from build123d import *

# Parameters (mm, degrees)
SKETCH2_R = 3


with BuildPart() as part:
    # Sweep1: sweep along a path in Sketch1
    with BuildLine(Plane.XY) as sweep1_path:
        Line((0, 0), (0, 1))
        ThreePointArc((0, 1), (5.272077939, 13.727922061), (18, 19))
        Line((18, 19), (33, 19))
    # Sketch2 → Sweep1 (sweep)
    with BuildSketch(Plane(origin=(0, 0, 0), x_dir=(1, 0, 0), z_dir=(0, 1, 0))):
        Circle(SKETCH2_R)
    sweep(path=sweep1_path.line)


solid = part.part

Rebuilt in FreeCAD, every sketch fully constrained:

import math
import FreeCAD as App
import Part
import Sketcher

doc = App.newDocument("Part")
body = doc.addObject("PartDesign::Body", "Body")

# Sketch on XZ plane
sketch1 = body.newObject("Sketcher::SketchObject", "Sketch")
sketch1.AttachmentSupport = (doc.getObject("XZ_Plane"), [""])
sketch1.MapMode = "FlatFace"
sketch1.addGeometry(Part.Circle(App.Vector(0, 0, 0), App.Vector(0, 0, 1), 3), False)
sketch1.addConstraint(Sketcher.Constraint("Coincident", 0, 3, -1, 1))
sketch1.addConstraint(Sketcher.Constraint("Diameter", 0, 6.0))

# Sketch on XY plane
sketch2 = body.newObject("Sketcher::SketchObject", "Sketch001")
sketch2.AttachmentSupport = (doc.getObject("XY_Plane"), [""])
sketch2.MapMode = "FlatFace"
sketch2.addGeometry(Part.LineSegment(App.Vector(0, 0, 0), App.Vector(0, 1, 0)), False)
sketch2.addGeometry(Part.ArcOfCircle(Part.Circle(App.Vector(18, 1, 0), App.Vector(0, 0, 1), 18), math.radians(90), math.radians(180)), False)
sketch2.addGeometry(Part.LineSegment(App.Vector(18, 19, 0), App.Vector(33, 19, 0)), False)
sketch2.addConstraint(Sketcher.Constraint("Tangent", 0, 2, 1, 2))
sketch2.addConstraint(Sketcher.Constraint("Tangent", 1, 1, 2, 1))
sketch2.addConstraint(Sketcher.Constraint("Vertical", 0))
sketch2.addConstraint(Sketcher.Constraint("Horizontal", 2))
sketch2.addConstraint(Sketcher.Constraint("Coincident", 0, 1, -1, 1))
sketch2.addConstraint(Sketcher.Constraint("Radius", 1, 18.0))
sketch2.addConstraint(Sketcher.Constraint("DistanceX", 2, 1, 2, 2, 15.0))
sketch2.addConstraint(Sketcher.Constraint("DistanceY", 0, 1, 0, 2, 1.0))
doc.recompute()

additivepipe = body.newObject("PartDesign::AdditivePipe", "AdditivePipe")
additivepipe.Profile = sketch1
additivepipe.Spine = (sketch2, ["Edge1", "Edge2", "Edge3"])

doc.recompute()
